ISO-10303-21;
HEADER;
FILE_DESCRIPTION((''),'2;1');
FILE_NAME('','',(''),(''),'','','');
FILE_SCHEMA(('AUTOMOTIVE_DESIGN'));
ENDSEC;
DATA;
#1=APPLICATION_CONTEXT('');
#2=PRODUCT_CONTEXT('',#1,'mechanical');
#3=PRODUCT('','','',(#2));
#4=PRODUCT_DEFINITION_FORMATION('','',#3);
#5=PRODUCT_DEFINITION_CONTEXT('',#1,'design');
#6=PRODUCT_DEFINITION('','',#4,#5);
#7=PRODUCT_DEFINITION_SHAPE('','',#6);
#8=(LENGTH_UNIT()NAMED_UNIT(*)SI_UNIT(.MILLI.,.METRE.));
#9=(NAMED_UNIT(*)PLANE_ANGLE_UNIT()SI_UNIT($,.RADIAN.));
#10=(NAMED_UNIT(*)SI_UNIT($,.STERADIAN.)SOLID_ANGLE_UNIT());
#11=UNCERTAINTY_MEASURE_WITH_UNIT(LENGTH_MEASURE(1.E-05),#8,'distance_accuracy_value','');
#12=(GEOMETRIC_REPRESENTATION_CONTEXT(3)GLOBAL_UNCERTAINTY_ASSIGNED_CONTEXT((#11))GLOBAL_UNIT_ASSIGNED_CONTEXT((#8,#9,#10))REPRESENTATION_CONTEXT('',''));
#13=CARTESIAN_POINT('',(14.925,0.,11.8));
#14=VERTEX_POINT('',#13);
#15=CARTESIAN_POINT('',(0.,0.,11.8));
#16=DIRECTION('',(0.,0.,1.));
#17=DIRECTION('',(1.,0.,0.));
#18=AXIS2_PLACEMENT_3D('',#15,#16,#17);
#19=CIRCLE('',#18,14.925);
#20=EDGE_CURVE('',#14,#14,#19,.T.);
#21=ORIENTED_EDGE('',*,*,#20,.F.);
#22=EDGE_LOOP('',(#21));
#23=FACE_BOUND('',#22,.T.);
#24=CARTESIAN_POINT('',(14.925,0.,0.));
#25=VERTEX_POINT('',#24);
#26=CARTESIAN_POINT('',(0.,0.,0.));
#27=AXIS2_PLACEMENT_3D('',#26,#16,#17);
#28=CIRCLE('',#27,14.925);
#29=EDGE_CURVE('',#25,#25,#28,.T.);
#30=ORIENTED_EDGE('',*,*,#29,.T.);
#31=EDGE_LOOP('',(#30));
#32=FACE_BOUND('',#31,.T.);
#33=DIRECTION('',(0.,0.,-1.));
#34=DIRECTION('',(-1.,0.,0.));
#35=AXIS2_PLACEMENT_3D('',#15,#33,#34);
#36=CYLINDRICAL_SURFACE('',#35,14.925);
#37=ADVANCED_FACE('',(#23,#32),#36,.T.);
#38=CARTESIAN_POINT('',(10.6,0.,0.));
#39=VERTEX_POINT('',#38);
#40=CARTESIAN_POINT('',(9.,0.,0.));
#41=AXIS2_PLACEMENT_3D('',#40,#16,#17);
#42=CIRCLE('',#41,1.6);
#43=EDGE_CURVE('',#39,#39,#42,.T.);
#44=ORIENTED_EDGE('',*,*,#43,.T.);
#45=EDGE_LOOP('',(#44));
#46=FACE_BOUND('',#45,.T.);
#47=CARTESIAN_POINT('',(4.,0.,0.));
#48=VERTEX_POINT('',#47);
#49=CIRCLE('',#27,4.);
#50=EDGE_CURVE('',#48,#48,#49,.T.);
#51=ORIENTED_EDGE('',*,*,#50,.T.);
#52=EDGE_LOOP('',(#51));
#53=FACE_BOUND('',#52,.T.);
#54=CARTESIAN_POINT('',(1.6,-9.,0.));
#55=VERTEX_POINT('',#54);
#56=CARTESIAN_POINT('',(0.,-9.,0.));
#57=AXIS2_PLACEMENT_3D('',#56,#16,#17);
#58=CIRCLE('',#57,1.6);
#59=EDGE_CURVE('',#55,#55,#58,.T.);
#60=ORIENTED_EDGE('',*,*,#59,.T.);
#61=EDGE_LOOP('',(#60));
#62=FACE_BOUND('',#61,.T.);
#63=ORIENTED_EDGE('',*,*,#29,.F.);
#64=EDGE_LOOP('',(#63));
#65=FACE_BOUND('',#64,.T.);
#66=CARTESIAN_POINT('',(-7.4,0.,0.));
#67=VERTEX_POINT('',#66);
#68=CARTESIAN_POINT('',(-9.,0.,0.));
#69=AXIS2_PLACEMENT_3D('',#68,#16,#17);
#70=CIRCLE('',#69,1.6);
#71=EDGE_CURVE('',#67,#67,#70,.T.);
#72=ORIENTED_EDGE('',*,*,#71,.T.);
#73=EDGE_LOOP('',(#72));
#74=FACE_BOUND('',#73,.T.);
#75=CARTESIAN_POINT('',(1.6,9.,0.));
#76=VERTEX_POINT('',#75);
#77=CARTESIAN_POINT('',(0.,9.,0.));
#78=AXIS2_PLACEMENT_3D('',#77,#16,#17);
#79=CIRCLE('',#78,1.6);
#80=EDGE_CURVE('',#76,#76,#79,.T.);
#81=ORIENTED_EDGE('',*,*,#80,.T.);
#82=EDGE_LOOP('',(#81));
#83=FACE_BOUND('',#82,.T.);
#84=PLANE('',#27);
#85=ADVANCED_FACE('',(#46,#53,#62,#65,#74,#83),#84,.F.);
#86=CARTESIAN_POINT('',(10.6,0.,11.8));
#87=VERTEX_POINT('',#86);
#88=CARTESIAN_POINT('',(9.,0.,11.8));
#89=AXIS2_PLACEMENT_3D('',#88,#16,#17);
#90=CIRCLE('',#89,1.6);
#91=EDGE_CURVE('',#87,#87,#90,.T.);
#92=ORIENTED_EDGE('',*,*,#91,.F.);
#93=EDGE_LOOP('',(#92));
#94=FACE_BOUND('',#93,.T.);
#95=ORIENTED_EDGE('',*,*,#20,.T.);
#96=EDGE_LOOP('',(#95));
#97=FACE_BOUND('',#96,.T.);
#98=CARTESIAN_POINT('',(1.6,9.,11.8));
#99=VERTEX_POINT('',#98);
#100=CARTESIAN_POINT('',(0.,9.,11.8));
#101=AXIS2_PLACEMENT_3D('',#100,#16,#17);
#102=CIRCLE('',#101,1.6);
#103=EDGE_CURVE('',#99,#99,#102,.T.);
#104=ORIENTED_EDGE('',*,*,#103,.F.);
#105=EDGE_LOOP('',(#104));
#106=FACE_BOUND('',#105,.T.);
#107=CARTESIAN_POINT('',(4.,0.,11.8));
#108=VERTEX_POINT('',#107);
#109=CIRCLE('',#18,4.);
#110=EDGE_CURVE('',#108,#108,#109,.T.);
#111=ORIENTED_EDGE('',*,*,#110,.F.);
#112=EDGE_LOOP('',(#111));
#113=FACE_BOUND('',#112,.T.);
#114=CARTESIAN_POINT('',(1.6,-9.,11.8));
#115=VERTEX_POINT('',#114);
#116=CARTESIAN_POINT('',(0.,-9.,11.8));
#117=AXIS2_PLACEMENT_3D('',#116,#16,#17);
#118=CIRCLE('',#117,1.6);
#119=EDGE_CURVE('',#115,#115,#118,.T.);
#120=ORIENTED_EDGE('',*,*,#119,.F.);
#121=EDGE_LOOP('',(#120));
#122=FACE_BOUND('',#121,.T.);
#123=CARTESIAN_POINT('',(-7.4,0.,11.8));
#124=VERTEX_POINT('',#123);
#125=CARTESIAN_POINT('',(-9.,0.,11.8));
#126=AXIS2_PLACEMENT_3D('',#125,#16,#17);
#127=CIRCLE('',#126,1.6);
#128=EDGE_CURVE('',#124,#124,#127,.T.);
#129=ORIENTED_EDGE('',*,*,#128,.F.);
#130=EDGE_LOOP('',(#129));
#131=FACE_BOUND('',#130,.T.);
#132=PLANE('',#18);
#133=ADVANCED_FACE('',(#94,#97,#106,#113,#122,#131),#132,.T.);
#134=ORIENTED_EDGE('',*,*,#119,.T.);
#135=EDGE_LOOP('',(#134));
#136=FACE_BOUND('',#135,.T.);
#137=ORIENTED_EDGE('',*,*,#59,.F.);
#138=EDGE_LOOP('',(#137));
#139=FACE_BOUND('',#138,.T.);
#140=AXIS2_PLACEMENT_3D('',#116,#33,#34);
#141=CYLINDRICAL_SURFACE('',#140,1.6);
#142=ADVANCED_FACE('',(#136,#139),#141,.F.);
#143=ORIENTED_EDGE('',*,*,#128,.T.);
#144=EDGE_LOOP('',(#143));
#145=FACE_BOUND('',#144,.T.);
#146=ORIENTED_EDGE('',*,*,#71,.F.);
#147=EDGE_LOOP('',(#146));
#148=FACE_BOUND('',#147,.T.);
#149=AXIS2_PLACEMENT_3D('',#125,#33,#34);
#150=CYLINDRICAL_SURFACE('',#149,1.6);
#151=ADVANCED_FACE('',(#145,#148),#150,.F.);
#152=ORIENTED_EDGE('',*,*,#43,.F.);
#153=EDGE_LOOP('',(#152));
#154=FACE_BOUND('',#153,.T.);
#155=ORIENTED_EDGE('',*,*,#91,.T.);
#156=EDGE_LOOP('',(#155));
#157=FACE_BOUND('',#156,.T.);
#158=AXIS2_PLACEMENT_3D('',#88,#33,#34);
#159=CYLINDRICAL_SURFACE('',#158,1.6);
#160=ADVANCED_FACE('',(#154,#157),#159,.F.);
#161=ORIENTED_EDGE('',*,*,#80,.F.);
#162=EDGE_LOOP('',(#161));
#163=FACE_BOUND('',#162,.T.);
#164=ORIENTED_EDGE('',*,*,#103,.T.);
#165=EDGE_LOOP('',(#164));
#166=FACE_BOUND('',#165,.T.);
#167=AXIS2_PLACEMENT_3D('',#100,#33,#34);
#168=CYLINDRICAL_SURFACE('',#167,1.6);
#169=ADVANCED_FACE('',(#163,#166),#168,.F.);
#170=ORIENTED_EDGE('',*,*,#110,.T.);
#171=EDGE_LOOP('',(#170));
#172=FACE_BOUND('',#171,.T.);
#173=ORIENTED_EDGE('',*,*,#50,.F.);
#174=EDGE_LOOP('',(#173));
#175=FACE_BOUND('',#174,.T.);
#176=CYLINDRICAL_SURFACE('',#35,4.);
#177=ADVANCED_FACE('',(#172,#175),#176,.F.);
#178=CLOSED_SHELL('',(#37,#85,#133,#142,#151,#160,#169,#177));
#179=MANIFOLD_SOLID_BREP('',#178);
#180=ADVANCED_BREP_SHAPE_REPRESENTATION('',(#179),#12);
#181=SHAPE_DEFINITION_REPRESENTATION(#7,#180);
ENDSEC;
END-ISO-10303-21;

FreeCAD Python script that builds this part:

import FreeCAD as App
import Part
import Sketcher

doc = App.newDocument("Part")
body = doc.addObject("PartDesign::Body", "Body")

# Sketch on XY plane
sketch1 = body.newObject("Sketcher::SketchObject", "Sketch")
sketch1.AttachmentSupport = (doc.getObject("XY_Plane"), [""])
sketch1.MapMode = "FlatFace"
sketch1.addGeometry([
    Part.Circle(App.Vector(0, 0, 0), App.Vector(0, 0, 1), 14.9),  # 0
    Part.Circle(App.Vector(-9, 0, 0), App.Vector(0, 0, 1), 1.6),  # 1
    Part.Circle(App.Vector(0, -9, 0), App.Vector(0, 0, 1), 1.6),  # 2
    Part.Circle(App.Vector(0, 0, 0), App.Vector(0, 0, 1), 4),  # 3
    Part.Circle(App.Vector(9, 0, 0), App.Vector(0, 0, 1), 1.6),  # 4
    Part.Circle(App.Vector(0, 9, 0), App.Vector(0, 0, 1), 1.6),  # 5
], False)
sketch1.addConstraint([
    Sketcher.Constraint("Coincident", 0, 3, -1, 1),
    Sketcher.Constraint("Coincident", 3, 3, -1, 1),
    Sketcher.Constraint("Equal", 1, 2),
    Sketcher.Constraint("Equal", 2, 4),
    Sketcher.Constraint("Equal", 4, 5),
    Sketcher.Constraint("Symmetric", 1, 3, 4, 3, -1, 1),
    Sketcher.Constraint("Symmetric", 2, 3, 5, 3, -1, 1),
    Sketcher.Constraint("PointOnObject", 1, 3, -1),
    Sketcher.Constraint("PointOnObject", 2, 3, -2),
    Sketcher.Constraint("Diameter", 3, 8.0),
    Sketcher.Constraint("Diameter", 1, 3.2),
    Sketcher.Constraint("Diameter", 0, 29.85),
    Sketcher.Constraint("DistanceX", 1, 3, -1, 1, 9.0),
    Sketcher.Constraint("DistanceY", 2, 3, -1, 1, 9.0),
])
pad1 = body.newObject("PartDesign::Pad", "Pad")
pad1.Profile = sketch1
pad1.Length = 11.8

doc.recompute()
